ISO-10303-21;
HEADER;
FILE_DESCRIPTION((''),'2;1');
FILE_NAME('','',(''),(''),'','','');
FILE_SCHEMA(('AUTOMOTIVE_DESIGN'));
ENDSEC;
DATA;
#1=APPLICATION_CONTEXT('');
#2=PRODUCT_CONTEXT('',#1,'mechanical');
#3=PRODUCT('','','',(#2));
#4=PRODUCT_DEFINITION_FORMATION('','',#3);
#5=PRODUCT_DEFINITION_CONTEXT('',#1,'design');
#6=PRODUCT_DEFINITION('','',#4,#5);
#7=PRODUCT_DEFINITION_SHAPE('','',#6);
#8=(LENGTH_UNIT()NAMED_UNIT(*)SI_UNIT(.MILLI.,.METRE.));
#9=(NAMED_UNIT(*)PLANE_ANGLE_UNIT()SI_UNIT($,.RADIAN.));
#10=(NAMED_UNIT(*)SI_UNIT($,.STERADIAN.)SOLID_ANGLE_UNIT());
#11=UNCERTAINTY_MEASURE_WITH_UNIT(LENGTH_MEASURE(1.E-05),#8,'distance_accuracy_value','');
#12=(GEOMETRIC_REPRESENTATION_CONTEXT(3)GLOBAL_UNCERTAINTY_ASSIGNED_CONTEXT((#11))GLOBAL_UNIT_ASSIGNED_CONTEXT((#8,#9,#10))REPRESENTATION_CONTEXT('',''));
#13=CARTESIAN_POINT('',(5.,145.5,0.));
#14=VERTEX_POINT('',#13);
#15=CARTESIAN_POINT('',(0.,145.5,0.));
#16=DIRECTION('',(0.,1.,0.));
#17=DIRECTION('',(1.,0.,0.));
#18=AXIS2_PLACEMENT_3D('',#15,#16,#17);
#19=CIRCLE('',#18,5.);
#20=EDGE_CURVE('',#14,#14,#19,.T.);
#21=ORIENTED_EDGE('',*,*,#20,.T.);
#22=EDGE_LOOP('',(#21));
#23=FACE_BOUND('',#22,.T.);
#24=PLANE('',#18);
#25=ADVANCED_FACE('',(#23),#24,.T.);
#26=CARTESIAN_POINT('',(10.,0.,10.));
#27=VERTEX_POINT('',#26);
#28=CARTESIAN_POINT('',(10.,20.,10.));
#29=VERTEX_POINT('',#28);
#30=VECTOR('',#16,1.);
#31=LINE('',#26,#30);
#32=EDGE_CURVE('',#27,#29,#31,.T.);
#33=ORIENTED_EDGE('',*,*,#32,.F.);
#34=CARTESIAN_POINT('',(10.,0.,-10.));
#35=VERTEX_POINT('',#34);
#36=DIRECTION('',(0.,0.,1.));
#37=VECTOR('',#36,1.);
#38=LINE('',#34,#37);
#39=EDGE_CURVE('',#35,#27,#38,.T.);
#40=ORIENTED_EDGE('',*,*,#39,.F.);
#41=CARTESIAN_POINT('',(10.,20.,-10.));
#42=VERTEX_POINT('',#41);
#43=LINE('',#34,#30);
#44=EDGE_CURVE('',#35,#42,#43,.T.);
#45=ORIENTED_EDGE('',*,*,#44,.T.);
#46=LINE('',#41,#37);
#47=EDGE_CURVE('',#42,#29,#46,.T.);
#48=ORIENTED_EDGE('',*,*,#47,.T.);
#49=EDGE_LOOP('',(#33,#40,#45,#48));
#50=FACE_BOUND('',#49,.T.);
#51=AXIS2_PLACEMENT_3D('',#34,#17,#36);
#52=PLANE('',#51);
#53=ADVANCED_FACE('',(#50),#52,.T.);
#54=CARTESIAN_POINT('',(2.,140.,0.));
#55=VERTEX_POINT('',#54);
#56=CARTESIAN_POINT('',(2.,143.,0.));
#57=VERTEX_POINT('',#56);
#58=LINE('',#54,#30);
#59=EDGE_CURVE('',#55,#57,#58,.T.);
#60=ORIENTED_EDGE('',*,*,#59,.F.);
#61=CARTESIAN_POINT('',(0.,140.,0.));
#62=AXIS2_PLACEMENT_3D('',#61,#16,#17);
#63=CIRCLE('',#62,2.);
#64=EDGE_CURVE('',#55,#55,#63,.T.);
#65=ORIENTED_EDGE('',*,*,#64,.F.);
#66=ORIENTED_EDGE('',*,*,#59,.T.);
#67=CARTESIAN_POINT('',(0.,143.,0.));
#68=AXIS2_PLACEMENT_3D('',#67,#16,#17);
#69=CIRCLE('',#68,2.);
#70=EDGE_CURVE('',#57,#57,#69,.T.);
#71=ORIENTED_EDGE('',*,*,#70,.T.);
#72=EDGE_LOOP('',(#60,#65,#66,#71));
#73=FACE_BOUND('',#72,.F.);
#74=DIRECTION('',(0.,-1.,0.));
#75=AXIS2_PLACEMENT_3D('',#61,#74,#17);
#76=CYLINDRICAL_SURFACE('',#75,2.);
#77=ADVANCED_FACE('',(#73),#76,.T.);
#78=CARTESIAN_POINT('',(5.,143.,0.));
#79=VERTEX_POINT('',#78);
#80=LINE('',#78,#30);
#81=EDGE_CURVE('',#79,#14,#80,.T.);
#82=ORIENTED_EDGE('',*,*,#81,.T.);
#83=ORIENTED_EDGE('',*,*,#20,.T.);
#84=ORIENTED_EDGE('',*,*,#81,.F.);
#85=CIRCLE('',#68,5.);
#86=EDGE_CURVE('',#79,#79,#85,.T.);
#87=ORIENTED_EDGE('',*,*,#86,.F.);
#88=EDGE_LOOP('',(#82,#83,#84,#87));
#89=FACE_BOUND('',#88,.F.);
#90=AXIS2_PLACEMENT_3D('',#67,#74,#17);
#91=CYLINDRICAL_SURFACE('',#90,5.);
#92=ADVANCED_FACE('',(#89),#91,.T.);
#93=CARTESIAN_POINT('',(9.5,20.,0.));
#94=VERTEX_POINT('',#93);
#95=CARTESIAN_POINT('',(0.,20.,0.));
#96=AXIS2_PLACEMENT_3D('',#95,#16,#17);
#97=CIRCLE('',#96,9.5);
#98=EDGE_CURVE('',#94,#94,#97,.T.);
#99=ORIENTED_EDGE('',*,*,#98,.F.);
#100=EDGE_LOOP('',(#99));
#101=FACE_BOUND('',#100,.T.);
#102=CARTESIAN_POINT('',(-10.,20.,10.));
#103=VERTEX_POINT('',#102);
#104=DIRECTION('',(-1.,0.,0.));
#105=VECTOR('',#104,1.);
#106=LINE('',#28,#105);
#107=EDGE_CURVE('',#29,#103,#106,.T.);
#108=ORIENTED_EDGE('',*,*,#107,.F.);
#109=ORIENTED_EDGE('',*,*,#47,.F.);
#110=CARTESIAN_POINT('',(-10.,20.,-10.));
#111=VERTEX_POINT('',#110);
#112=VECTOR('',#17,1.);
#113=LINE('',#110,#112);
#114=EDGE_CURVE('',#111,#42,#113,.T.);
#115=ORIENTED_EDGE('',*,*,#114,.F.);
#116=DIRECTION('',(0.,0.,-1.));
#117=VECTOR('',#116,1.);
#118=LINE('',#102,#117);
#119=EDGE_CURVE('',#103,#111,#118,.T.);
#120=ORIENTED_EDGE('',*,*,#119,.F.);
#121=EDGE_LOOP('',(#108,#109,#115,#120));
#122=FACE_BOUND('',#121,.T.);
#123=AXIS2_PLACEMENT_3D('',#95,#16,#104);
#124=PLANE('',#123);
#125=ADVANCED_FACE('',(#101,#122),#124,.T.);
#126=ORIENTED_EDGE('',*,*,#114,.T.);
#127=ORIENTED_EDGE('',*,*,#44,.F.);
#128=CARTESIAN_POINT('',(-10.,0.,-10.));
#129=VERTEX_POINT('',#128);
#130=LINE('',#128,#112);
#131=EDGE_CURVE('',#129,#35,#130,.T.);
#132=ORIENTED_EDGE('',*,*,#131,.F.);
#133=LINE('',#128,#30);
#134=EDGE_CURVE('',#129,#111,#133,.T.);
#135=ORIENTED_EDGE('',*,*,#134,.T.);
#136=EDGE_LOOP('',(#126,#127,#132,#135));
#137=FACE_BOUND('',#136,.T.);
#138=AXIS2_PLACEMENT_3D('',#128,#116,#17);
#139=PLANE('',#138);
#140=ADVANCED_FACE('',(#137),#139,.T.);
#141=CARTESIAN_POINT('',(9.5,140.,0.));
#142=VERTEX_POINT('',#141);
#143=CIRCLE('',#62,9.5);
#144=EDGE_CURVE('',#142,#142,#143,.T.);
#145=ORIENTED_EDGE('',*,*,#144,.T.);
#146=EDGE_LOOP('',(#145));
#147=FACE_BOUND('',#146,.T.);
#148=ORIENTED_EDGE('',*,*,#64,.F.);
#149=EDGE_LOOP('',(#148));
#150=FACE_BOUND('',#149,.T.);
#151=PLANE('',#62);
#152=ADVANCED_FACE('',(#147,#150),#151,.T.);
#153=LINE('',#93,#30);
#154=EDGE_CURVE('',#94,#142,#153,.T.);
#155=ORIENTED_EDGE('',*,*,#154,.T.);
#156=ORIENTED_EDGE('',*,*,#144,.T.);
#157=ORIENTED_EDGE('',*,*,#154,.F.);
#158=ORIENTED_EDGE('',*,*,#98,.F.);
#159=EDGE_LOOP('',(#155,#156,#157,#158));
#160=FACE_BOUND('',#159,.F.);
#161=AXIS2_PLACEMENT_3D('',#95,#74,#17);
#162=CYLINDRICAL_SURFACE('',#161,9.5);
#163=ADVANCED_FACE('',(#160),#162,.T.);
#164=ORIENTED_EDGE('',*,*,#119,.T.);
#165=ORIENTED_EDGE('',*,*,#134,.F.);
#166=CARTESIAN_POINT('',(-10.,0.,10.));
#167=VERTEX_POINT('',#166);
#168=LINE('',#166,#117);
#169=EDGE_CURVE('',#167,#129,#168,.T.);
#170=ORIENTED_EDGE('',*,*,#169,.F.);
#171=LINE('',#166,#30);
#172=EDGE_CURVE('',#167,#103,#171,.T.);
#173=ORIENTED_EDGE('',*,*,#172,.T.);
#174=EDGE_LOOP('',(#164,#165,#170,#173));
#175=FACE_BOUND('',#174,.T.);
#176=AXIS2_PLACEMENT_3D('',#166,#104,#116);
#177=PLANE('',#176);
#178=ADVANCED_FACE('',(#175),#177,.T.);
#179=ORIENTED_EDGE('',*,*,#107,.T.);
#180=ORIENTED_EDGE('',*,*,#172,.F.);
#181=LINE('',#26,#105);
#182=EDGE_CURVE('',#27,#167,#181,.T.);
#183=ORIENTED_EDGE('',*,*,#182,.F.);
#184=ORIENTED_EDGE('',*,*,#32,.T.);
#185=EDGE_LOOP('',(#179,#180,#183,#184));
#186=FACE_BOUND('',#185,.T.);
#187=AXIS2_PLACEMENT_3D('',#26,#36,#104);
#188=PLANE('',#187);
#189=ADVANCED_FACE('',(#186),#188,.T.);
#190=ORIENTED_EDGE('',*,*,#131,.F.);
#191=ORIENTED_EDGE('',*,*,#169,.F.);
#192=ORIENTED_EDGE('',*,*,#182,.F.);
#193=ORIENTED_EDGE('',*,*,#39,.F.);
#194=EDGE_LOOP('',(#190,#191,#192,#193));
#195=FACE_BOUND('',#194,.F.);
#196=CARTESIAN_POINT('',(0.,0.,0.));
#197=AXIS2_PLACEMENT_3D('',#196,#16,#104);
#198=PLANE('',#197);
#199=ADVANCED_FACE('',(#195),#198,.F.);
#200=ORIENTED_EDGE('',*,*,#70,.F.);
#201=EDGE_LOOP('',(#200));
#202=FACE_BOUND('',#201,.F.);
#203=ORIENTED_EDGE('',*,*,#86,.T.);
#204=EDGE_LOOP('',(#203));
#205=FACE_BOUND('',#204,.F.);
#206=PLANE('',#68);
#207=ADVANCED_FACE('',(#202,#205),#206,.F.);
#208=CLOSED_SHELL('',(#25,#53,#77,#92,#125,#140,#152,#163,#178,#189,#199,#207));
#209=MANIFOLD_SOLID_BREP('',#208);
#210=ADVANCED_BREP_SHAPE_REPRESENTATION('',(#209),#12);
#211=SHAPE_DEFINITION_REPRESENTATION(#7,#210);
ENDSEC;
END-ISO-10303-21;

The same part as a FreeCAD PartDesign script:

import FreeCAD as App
import Part
import Sketcher

V = App.Vector
Q = App.Units.Quantity


def add_polygon(sketch, points):
    """Adds a closed chain of lines whose ends are joined by coincident constraints."""
    first, n = sketch.GeometryCount, len(points)
    for a, b in zip(points, points[1:] + points[:1]):
        sketch.addGeometry(Part.LineSegment(App.Vector(*a, 0), App.Vector(*b, 0)), False)
    for i in range(n):
        sketch.addConstraint(Sketcher.Constraint("Coincident", first + i, 2, first + (i + 1) % n, 1))

doc = App.newDocument("Part")
body = doc.addObject("PartDesign::Body", "Body")

# Sketch on XZ plane
sketch1 = body.newObject("Sketcher::SketchObject", "Sketch")
sketch1.AttachmentSupport = (doc.getObject("XZ_Plane"), [""])
sketch1.MapMode = "FlatFace"
add_polygon(sketch1, [(-10, 10), (10, 10), (10, -10), (-10, -10)])  # lines 0-3
sketch1.addConstraint([
    Sketcher.Constraint("Horizontal", 0),
    Sketcher.Constraint("Vertical", 1),
    Sketcher.Constraint("Horizontal", 2),
    Sketcher.Constraint("Vertical", 3),
    Sketcher.Constraint("Symmetric", 0, 2, 2, 2, -1, 1),
    Sketcher.Constraint("Equal", 2, 1),
    Sketcher.Constraint("DistanceX", 0, 1, 0, 2, Q("20 mm")),
])
pad1 = body.newObject("PartDesign::Pad", "Pad")
pad1.Profile = sketch1
pad1.Length = 20
pad1.Reversed = True

# Sketch on XZ plane
sketch2 = body.newObject("Sketcher::SketchObject", "Sketch001")
sketch2.AttachmentSupport = (doc.getObject("XZ_Plane"), [""])
sketch2.MapMode = "FlatFace"
sketch2.AttachmentOffset = App.Placement(V(0, 0, -20), App.Rotation())
sketch2.addGeometry(Part.Circle(V(0, 0, 0), V(0, 0, 1), 10), False)
sketch2.addConstraint([
    Sketcher.Constraint("Coincident", 0, 3, -1, 1),
    Sketcher.Constraint("Diameter", 0, Q("19 mm")),
])
pad2 = body.newObject("PartDesign::Pad", "Pad001")
pad2.Profile = sketch2
pad2.Length = 120
pad2.Reversed = True

# Sketch on XZ plane
sketch3 = body.newObject("Sketcher::SketchObject", "Sketch002")
sketch3.AttachmentSupport = (doc.getObject("XZ_Plane"), [""])
sketch3.MapMode = "FlatFace"
sketch3.AttachmentOffset = App.Placement(V(0, 0, -140), App.Rotation())
sketch3.addGeometry(Part.Circle(V(0, 0, 0), V(0, 0, 1), 2), False)
sketch3.addConstraint([
    Sketcher.Constraint("Coincident", 0, 3, -1, 1),
    Sketcher.Constraint("Diameter", 0, Q("4 mm")),
])
pad3 = body.newObject("PartDesign::Pad", "Pad002")
pad3.Profile = sketch3
pad3.Length = 3
pad3.Reversed = True

# Sketch on XZ plane
sketch4 = body.newObject("Sketcher::SketchObject", "Sketch003")
sketch4.AttachmentSupport = (doc.getObject("XZ_Plane"), [""])
sketch4.MapMode = "FlatFace"
sketch4.AttachmentOffset = App.Placement(V(0, 0, -143), App.Rotation())
sketch4.addGeometry(Part.Circle(V(0, 0, 0), V(0, 0, 1), 5), False)
sketch4.addConstraint([
    Sketcher.Constraint("Coincident", 0, 3, -1, 1),
    Sketcher.Constraint("Diameter", 0, Q("10 mm")),
])
pad4 = body.newObject("PartDesign::Pad", "Pad003")
pad4.Profile = sketch4
pad4.Length = 2.5
pad4.Reversed = True

doc.recompute()
